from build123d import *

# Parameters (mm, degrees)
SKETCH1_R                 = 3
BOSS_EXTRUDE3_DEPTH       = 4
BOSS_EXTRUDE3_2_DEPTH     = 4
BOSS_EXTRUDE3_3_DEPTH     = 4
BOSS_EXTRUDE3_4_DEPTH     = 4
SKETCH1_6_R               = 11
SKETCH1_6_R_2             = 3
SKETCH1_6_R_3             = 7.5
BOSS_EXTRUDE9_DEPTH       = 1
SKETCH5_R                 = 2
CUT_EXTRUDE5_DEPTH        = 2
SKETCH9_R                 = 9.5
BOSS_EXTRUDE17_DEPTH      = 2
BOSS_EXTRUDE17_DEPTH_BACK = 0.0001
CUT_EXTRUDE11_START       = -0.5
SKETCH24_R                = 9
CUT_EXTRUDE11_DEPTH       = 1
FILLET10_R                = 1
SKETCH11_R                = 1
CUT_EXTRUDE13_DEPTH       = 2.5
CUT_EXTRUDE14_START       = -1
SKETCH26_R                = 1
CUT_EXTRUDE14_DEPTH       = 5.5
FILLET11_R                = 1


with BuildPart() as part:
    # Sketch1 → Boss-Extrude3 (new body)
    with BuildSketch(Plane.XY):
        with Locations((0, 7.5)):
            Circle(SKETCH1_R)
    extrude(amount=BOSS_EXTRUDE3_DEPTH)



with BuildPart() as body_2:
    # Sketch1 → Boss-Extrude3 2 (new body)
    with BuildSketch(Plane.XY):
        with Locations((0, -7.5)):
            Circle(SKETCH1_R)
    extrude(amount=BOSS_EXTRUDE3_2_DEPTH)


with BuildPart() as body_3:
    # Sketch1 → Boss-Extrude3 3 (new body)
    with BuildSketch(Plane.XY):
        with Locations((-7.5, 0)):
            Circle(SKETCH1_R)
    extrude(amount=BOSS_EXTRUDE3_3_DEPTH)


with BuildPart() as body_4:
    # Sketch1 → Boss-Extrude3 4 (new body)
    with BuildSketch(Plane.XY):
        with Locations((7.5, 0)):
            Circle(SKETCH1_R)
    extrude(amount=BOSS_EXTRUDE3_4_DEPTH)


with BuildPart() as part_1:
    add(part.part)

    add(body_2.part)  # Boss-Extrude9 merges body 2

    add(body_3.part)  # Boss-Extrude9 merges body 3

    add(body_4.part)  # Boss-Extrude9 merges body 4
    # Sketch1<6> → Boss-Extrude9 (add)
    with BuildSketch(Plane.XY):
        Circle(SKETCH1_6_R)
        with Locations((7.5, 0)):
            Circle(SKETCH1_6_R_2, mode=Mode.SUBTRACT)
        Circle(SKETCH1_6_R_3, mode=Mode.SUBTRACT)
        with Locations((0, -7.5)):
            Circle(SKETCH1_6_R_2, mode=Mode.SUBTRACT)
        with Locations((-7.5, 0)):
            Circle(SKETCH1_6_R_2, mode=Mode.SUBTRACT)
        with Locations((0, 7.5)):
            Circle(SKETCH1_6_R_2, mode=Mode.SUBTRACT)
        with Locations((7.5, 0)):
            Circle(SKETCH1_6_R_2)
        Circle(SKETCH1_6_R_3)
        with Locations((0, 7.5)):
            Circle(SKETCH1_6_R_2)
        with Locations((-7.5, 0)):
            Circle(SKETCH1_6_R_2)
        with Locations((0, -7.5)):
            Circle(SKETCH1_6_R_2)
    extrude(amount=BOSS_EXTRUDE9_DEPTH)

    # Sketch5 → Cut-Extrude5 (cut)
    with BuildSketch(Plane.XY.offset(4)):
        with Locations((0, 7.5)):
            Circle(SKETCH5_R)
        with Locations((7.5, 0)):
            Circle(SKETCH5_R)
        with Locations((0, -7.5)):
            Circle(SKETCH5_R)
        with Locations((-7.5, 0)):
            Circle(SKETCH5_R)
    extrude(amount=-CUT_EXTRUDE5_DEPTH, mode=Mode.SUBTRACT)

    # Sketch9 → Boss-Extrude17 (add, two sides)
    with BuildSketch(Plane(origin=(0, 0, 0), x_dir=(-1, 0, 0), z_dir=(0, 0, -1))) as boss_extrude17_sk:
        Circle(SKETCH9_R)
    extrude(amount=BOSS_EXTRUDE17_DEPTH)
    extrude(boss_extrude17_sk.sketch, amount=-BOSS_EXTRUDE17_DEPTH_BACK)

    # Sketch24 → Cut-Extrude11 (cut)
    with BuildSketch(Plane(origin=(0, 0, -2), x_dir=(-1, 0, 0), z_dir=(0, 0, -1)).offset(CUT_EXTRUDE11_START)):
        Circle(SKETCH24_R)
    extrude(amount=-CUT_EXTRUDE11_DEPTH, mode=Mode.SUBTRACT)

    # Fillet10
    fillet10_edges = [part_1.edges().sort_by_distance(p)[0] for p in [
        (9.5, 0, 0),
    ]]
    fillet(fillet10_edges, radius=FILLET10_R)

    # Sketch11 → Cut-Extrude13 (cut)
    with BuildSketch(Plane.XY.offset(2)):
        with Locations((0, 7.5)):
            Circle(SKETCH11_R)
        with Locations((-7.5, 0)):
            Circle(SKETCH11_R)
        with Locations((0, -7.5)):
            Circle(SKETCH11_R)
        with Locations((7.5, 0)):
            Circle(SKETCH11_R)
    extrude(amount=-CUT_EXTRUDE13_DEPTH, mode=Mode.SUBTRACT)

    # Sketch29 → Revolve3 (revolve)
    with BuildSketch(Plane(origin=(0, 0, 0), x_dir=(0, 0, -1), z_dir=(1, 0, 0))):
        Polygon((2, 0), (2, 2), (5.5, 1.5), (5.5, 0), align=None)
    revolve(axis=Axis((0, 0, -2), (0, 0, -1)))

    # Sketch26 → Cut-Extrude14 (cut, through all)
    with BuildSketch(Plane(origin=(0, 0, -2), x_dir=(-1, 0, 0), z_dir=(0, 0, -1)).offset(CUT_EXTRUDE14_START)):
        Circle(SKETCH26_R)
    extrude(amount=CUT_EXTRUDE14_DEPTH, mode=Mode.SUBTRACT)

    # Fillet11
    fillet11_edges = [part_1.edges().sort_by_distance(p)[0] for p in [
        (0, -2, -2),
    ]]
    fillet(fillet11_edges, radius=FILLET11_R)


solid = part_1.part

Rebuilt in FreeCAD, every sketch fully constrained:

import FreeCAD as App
import Part
import Sketcher
Q = App.Units.Quantity


def edges_at(feature, points):
    """Names of the edges that pass closest to the given points."""
    edges = feature.Shape.Edges
    near = lambda p: min(range(len(edges)), key=lambda i: edges[i].distToShape(Part.Vertex(*p))[0])
    return sorted({f"Edge{near(p) + 1}" for p in points})

doc = App.newDocument("Part")
params = doc.addObject("Spreadsheet::Sheet", "Params")
for row, (alias, value) in enumerate([
    ("sketch1_diameter", "6 mm"),
    ("pad1_length", "4 mm"),
    ("sketch2_diameter", "6 mm"),
    ("pad2_length", "4 mm"),
    ("sketch3_diameter", "6 mm"),
    ("pad3_length", "4 mm"),
    ("sketch4_diameter", "6 mm"),
    ("pad4_length", "4 mm"),
    ("sketch5_diameter", "22 mm"),
    ("pad5_length", "1 mm"),
    ("sketch6_diameter", "4 mm"),
    ("pocket1_length", "2 mm"),
    ("sketch7_diameter", "19 mm"),
    ("pad6_length", "2 mm"),
    ("pad6_length2", "0.0001 mm"),
    ("sketch8_diameter", "18 mm"),
    ("pocket2_length", "1 mm"),
    ("fillet_radius", "1 mm"),
    ("sketch9_diameter", "2 mm"),
    ("pocket3_length", "2.5 mm"),
    ("sketch10_width", "2 mm"),
    ("sketch10_width2", "1.5 mm"),
    ("sketch10_height", "3.5 mm"),
    ("revolution_angle", "360 deg"),
    ("sketch11_diameter", "2 mm"),
    ("fillet2_radius", "1 mm"),
], start=1):
    params.set(f"A{row}", alias)
    params.set(f"B{row}", "=" + value)
    params.setAlias(f"B{row}", alias)

body = doc.addObject("PartDesign::Body", "Body")

sketch1 = doc.addObject("Sketcher::SketchObject", "Sketch")
body.addObject(sketch1)
sketch1.AttachmentSupport = (doc.XY_Plane, [""])
sketch1.MapMode = "FlatFace"
sketch1.addGeometry(Part.Circle(App.Vector(0, 7.5, 0), App.Vector(0, 0, 1), 3), False)
sketch1.addConstraint([
    Sketcher.Constraint("PointOnObject", 0, 3, -2),
    Sketcher.Constraint("Diameter", 0, Q("6 mm")),
    Sketcher.Constraint("DistanceY", -1, 1, 0, 3, Q("7.5 mm")),
])
sketch1.setExpression("Constraints[1]", "Params.sketch1_diameter")
pad1 = doc.addObject("PartDesign::Pad", "Pad")
body.addObject(pad1)
pad1.Profile = sketch1
pad1.setExpression("Length", "Params.pad1_length")
body2 = doc.addObject("PartDesign::Body", "Body001")

sketch2 = doc.addObject("Sketcher::SketchObject", "Sketch001")
body2.addObject(sketch2)
sketch2.AttachmentSupport = (doc.getObject("XY_Plane001"), [""])
sketch2.MapMode = "FlatFace"
sketch2.addGeometry(Part.Circle(App.Vector(0, -7.5, 0), App.Vector(0, 0, 1), 3), False)
sketch2.addConstraint([
    Sketcher.Constraint("PointOnObject", 0, 3, -2),
    Sketcher.Constraint("Diameter", 0, Q("6 mm")),
    Sketcher.Constraint("DistanceY", 0, 3, -1, 1, Q("7.5 mm")),
])
sketch2.setExpression("Constraints[1]", "Params.sketch2_diameter")
pad2 = doc.addObject("PartDesign::Pad", "Pad001")
body2.addObject(pad2)
pad2.Profile = sketch2
pad2.setExpression("Length", "Params.pad2_length")
body3 = doc.addObject("PartDesign::Body", "Body002")

sketch3 = doc.addObject("Sketcher::SketchObject", "Sketch002")
body3.addObject(sketch3)
sketch3.AttachmentSupport = (doc.getObject("XY_Plane002"), [""])
sketch3.MapMode = "FlatFace"
sketch3.addGeometry(Part.Circle(App.Vector(-7.5, 0, 0), App.Vector(0, 0, 1), 3), False)
sketch3.addConstraint([
    Sketcher.Constraint("PointOnObject", 0, 3, -1),
    Sketcher.Constraint("Diameter", 0, Q("6 mm")),
    Sketcher.Constraint("DistanceX", 0, 3, -1, 1, Q("7.5 mm")),
])
sketch3.setExpression("Constraints[1]", "Params.sketch3_diameter")
pad3 = doc.addObject("PartDesign::Pad", "Pad002")
body3.addObject(pad3)
pad3.Profile = sketch3
pad3.setExpression("Length", "Params.pad3_length")
body4 = doc.addObject("PartDesign::Body", "Body003")

sketch4 = doc.addObject("Sketcher::SketchObject", "Sketch003")
body4.addObject(sketch4)
sketch4.AttachmentSupport = (doc.getObject("XY_Plane003"), [""])
sketch4.MapMode = "FlatFace"
sketch4.addGeometry(Part.Circle(App.Vector(7.5, 0, 0), App.Vector(0, 0, 1), 3), False)
sketch4.addConstraint([
    Sketcher.Constraint("PointOnObject", 0, 3, -1),
    Sketcher.Constraint("Diameter", 0, Q("6 mm")),
    Sketcher.Constraint("DistanceX", -1, 1, 0, 3, Q("7.5 mm")),
])
sketch4.setExpression("Constraints[1]", "Params.sketch4_diameter")
pad4 = doc.addObject("PartDesign::Pad", "Pad003")
body4.addObject(pad4)
pad4.Profile = sketch4
pad4.setExpression("Length", "Params.pad4_length")
body.AllowCompound = True
doc.recompute()

boolean = doc.addObject("PartDesign::Boolean", "Boolean")
body.addObject(boolean)
boolean.Type = "Fuse"
boolean.addObjects([body2])
doc.recompute()

boolean2 = doc.addObject("PartDesign::Boolean", "Boolean001")
body.addObject(boolean2)
boolean2.Type = "Fuse"
boolean2.addObjects([body3])
doc.recompute()

boolean3 = doc.addObject("PartDesign::Boolean", "Boolean002")
body.addObject(boolean3)
boolean3.Type = "Fuse"
boolean3.addObjects([body4])

sketch5 = doc.addObject("Sketcher::SketchObject", "Sketch004")
body.addObject(sketch5)
sketch5.AttachmentSupport = (doc.XY_Plane, [""])
sketch5.MapMode = "FlatFace"
sketch5.addGeometry(Part.Circle(App.Vector(0, 0, 0), App.Vector(0, 0, 1), 11), False)
sketch5.addConstraint([
    Sketcher.Constraint("Coincident", 0, 3, -1, 1),
    Sketcher.Constraint("Diameter", 0, Q("22 mm")),
])
sketch5.setExpression("Constraints[1]", "Params.sketch5_diameter")
pad5 = doc.addObject("PartDesign::Pad", "Pad004")
body.addObject(pad5)
pad5.Profile = sketch5
pad5.setExpression("Length", "Params.pad5_length")

sketch6 = doc.addObject("Sketcher::SketchObject", "Sketch005")
body.addObject(sketch6)
sketch6.AttachmentSupport = (doc.XY_Plane, [""])
sketch6.MapMode = "FlatFace"
sketch6.AttachmentOffset = App.Placement(App.Vector(0, 0, 4), App.Rotation())
sketch6.addGeometry([
    Part.Circle(App.Vector(0, 7.5, 0), App.Vector(0, 0, 1), 2),
    Part.Circle(App.Vector(7.5, 0, 0), App.Vector(0, 0, 1), 2),
    Part.Circle(App.Vector(0, -7.5, 0), App.Vector(0, 0, 1), 2),
    Part.Circle(App.Vector(-7.5, 0, 0), App.Vector(0, 0, 1), 2),
], False)
sketch6.addConstraint([
    Sketcher.Constraint("Equal", 0, 1),
    Sketcher.Constraint("Equal", 1, 2),
    Sketcher.Constraint("Equal", 2, 3),
    Sketcher.Constraint("Symmetric", 0, 3, 2, 3, -1, 1),
    Sketcher.Constraint("Symmetric", 1, 3, 3, 3, -1, 1),
    Sketcher.Constraint("PointOnObject", 0, 3, -2),
    Sketcher.Constraint("PointOnObject", 1, 3, -1),
    Sketcher.Constraint("Diameter", 0, Q("4 mm")),
    Sketcher.Constraint("DistanceY", 2, 3, 0, 3, Q("15 mm")),
    Sketcher.Constraint("DistanceX", 3, 3, 1, 3, Q("15 mm")),
])
sketch6.setExpression("Constraints[7]", "Params.sketch6_diameter")
pocket1 = doc.addObject("PartDesign::Pocket", "Pocket")
body.addObject(pocket1)
pocket1.Profile = sketch6
pocket1.setExpression("Length", "Params.pocket1_length")

sketch7 = doc.addObject("Sketcher::SketchObject", "Sketch006")
body.addObject(sketch7)
sketch7.AttachmentSupport = (doc.XY_Plane, [""])
sketch7.MapMode = "FlatFace"
sketch7.addGeometry(Part.Circle(App.Vector(0, 0, 0), App.Vector(0, 0, 1), 10), False)
sketch7.addConstraint([
    Sketcher.Constraint("Coincident", 0, 3, -1, 1),
    Sketcher.Constraint("Diameter", 0, Q("19 mm")),
])
sketch7.setExpression("Constraints[1]", "Params.sketch7_diameter")
pad6 = doc.addObject("PartDesign::Pad", "Pad005")
body.addObject(pad6)
pad6.Profile = sketch7
pad6.Type = "TwoLengths"
pad6.setExpression("Length", "Params.pad6_length")
pad6.setExpression("Length2", "Params.pad6_length2")
pad6.Reversed = True

sketch8 = doc.addObject("Sketcher::SketchObject", "Sketch007")
body.addObject(sketch8)
sketch8.AttachmentSupport = (doc.XY_Plane, [""])
sketch8.MapMode = "FlatFace"
sketch8.AttachmentOffset = App.Placement(App.Vector(0, 0, -1.5), App.Rotation())
sketch8.addGeometry(Part.Circle(App.Vector(0, 0, 0), App.Vector(0, 0, 1), 9), False)
sketch8.addConstraint([
    Sketcher.Constraint("Coincident", 0, 3, -1, 1),
    Sketcher.Constraint("Diameter", 0, Q("18 mm")),
])
sketch8.setExpression("Constraints[1]", "Params.sketch8_diameter")
pocket2 = doc.addObject("PartDesign::Pocket", "Pocket001")
body.addObject(pocket2)
pocket2.Profile = sketch8
pocket2.setExpression("Length", "Params.pocket2_length")
pocket2.Reversed = True
doc.recompute()

fillet = doc.addObject("PartDesign::Fillet", "Fillet")
body.addObject(fillet)
fillet.Base = (pocket2, edges_at(pocket2, [(9.5, 0, 0)]))
fillet.setExpression("Radius", "Params.fillet_radius")

sketch9 = doc.addObject("Sketcher::SketchObject", "Sketch008")
body.addObject(sketch9)
sketch9.AttachmentSupport = (doc.XY_Plane, [""])
sketch9.MapMode = "FlatFace"
sketch9.AttachmentOffset = App.Placement(App.Vector(0, 0, 2), App.Rotation())
sketch9.addGeometry([
    Part.Circle(App.Vector(0, 7.5, 0), App.Vector(0, 0, 1), 1),
    Part.Circle(App.Vector(-7.5, 0, 0), App.Vector(0, 0, 1), 1),
    Part.Circle(App.Vector(0, -7.5, 0), App.Vector(0, 0, 1), 1),
    Part.Circle(App.Vector(7.5, 0, 0), App.Vector(0, 0, 1), 1),
], False)
sketch9.addConstraint([
    Sketcher.Constraint("Equal", 0, 1),
    Sketcher.Constraint("Equal", 1, 2),
    Sketcher.Constraint("Equal", 2, 3),
    Sketcher.Constraint("Symmetric", 0, 3, 2, 3, -1, 1),
    Sketcher.Constraint("Symmetric", 1, 3, 3, 3, -1, 1),
    Sketcher.Constraint("PointOnObject", 0, 3, -2),
    Sketcher.Constraint("PointOnObject", 1, 3, -1),
    Sketcher.Constraint("Diameter", 0, Q("2 mm")),
    Sketcher.Constraint("DistanceY", 2, 3, 0, 3, Q("15 mm")),
    Sketcher.Constraint("DistanceX", 1, 3, 3, 3, Q("15 mm")),
])
sketch9.setExpression("Constraints[7]", "Params.sketch9_diameter")
pocket3 = doc.addObject("PartDesign::Pocket", "Pocket002")
body.addObject(pocket3)
pocket3.Profile = sketch9
pocket3.setExpression("Length", "Params.pocket3_length")

sketch10 = doc.addObject("Sketcher::SketchObject", "Sketch009")
body.addObject(sketch10)
sketch10.AttachmentSupport = (doc.YZ_Plane, [""])
sketch10.MapMode = "FlatFace"
sketch10.addGeometry([
    Part.LineSegment(App.Vector(2, -2, 0), App.Vector(0, -2, 0)),
    Part.LineSegment(App.Vector(0, -2, 0), App.Vector(0, -5.5, 0)),
    Part.LineSegment(App.Vector(0, -5.5, 0), App.Vector(1.5, -5.5, 0)),
    Part.LineSegment(App.Vector(1.5, -5.5, 0), App.Vector(2, -2, 0)),
], False)
sketch10.addConstraint([
    Sketcher.Constraint("Coincident", 0, 2, 1, 1),
    Sketcher.Constraint("Coincident", 1, 2, 2, 1),
    Sketcher.Constraint("Coincident", 2, 2, 3, 1),
    Sketcher.Constraint("Coincident", 3, 2, 0, 1),
    Sketcher.Constraint("Horizontal", 0),
    Sketcher.Constraint("Vertical", 1),
    Sketcher.Constraint("Horizontal", 2),
    Sketcher.Constraint("PointOnObject", 0, 2, -2),
    Sketcher.Constraint("DistanceX", 0, 2, 0, 1, Q("2 mm")),
    Sketcher.Constraint("DistanceX", 2, 1, 2, 2, Q("1.5 mm")),
    Sketcher.Constraint("DistanceY", 1, 2, 1, 1, Q("3.5 mm")),
    Sketcher.Constraint("DistanceY", 0, 2, -1, 1, Q("2 mm")),
])
sketch10.setExpression("Constraints[8]", "Params.sketch10_width")
sketch10.setExpression("Constraints[9]", "Params.sketch10_width2")
sketch10.setExpression("Constraints[10]", "Params.sketch10_height")
revolution = doc.addObject("PartDesign::Revolution", "Revolution")
body.addObject(revolution)
revolution.Profile = sketch10
revolution.ReferenceAxis = (sketch10, ["V_Axis"])
revolution.setExpression("Angle", "Params.revolution_angle")

sketch11 = doc.addObject("Sketcher::SketchObject", "Sketch010")
body.addObject(sketch11)
sketch11.AttachmentSupport = (doc.XY_Plane, [""])
sketch11.MapMode = "FlatFace"
sketch11.AttachmentOffset = App.Placement(App.Vector(0, 0, -1), App.Rotation())
sketch11.addGeometry(Part.Circle(App.Vector(0, 0, 0), App.Vector(0, 0, 1), 1), False)
sketch11.addConstraint([
    Sketcher.Constraint("Coincident", 0, 3, -1, 1),
    Sketcher.Constraint("Diameter", 0, Q("2 mm")),
])
sketch11.setExpression("Constraints[1]", "Params.sketch11_diameter")
pocket4 = doc.addObject("PartDesign::Pocket", "Pocket003")
body.addObject(pocket4)
pocket4.Profile = sketch11
pocket4.Type = "ThroughAll"
doc.recompute()

fillet2 = doc.addObject("PartDesign::Fillet", "Fillet001")
body.addObject(fillet2)
fillet2.Base = (pocket4, edges_at(pocket4, [(0, -2, -2)]))
fillet2.setExpression("Radius", "Params.fillet2_radius")

doc.recompute()
